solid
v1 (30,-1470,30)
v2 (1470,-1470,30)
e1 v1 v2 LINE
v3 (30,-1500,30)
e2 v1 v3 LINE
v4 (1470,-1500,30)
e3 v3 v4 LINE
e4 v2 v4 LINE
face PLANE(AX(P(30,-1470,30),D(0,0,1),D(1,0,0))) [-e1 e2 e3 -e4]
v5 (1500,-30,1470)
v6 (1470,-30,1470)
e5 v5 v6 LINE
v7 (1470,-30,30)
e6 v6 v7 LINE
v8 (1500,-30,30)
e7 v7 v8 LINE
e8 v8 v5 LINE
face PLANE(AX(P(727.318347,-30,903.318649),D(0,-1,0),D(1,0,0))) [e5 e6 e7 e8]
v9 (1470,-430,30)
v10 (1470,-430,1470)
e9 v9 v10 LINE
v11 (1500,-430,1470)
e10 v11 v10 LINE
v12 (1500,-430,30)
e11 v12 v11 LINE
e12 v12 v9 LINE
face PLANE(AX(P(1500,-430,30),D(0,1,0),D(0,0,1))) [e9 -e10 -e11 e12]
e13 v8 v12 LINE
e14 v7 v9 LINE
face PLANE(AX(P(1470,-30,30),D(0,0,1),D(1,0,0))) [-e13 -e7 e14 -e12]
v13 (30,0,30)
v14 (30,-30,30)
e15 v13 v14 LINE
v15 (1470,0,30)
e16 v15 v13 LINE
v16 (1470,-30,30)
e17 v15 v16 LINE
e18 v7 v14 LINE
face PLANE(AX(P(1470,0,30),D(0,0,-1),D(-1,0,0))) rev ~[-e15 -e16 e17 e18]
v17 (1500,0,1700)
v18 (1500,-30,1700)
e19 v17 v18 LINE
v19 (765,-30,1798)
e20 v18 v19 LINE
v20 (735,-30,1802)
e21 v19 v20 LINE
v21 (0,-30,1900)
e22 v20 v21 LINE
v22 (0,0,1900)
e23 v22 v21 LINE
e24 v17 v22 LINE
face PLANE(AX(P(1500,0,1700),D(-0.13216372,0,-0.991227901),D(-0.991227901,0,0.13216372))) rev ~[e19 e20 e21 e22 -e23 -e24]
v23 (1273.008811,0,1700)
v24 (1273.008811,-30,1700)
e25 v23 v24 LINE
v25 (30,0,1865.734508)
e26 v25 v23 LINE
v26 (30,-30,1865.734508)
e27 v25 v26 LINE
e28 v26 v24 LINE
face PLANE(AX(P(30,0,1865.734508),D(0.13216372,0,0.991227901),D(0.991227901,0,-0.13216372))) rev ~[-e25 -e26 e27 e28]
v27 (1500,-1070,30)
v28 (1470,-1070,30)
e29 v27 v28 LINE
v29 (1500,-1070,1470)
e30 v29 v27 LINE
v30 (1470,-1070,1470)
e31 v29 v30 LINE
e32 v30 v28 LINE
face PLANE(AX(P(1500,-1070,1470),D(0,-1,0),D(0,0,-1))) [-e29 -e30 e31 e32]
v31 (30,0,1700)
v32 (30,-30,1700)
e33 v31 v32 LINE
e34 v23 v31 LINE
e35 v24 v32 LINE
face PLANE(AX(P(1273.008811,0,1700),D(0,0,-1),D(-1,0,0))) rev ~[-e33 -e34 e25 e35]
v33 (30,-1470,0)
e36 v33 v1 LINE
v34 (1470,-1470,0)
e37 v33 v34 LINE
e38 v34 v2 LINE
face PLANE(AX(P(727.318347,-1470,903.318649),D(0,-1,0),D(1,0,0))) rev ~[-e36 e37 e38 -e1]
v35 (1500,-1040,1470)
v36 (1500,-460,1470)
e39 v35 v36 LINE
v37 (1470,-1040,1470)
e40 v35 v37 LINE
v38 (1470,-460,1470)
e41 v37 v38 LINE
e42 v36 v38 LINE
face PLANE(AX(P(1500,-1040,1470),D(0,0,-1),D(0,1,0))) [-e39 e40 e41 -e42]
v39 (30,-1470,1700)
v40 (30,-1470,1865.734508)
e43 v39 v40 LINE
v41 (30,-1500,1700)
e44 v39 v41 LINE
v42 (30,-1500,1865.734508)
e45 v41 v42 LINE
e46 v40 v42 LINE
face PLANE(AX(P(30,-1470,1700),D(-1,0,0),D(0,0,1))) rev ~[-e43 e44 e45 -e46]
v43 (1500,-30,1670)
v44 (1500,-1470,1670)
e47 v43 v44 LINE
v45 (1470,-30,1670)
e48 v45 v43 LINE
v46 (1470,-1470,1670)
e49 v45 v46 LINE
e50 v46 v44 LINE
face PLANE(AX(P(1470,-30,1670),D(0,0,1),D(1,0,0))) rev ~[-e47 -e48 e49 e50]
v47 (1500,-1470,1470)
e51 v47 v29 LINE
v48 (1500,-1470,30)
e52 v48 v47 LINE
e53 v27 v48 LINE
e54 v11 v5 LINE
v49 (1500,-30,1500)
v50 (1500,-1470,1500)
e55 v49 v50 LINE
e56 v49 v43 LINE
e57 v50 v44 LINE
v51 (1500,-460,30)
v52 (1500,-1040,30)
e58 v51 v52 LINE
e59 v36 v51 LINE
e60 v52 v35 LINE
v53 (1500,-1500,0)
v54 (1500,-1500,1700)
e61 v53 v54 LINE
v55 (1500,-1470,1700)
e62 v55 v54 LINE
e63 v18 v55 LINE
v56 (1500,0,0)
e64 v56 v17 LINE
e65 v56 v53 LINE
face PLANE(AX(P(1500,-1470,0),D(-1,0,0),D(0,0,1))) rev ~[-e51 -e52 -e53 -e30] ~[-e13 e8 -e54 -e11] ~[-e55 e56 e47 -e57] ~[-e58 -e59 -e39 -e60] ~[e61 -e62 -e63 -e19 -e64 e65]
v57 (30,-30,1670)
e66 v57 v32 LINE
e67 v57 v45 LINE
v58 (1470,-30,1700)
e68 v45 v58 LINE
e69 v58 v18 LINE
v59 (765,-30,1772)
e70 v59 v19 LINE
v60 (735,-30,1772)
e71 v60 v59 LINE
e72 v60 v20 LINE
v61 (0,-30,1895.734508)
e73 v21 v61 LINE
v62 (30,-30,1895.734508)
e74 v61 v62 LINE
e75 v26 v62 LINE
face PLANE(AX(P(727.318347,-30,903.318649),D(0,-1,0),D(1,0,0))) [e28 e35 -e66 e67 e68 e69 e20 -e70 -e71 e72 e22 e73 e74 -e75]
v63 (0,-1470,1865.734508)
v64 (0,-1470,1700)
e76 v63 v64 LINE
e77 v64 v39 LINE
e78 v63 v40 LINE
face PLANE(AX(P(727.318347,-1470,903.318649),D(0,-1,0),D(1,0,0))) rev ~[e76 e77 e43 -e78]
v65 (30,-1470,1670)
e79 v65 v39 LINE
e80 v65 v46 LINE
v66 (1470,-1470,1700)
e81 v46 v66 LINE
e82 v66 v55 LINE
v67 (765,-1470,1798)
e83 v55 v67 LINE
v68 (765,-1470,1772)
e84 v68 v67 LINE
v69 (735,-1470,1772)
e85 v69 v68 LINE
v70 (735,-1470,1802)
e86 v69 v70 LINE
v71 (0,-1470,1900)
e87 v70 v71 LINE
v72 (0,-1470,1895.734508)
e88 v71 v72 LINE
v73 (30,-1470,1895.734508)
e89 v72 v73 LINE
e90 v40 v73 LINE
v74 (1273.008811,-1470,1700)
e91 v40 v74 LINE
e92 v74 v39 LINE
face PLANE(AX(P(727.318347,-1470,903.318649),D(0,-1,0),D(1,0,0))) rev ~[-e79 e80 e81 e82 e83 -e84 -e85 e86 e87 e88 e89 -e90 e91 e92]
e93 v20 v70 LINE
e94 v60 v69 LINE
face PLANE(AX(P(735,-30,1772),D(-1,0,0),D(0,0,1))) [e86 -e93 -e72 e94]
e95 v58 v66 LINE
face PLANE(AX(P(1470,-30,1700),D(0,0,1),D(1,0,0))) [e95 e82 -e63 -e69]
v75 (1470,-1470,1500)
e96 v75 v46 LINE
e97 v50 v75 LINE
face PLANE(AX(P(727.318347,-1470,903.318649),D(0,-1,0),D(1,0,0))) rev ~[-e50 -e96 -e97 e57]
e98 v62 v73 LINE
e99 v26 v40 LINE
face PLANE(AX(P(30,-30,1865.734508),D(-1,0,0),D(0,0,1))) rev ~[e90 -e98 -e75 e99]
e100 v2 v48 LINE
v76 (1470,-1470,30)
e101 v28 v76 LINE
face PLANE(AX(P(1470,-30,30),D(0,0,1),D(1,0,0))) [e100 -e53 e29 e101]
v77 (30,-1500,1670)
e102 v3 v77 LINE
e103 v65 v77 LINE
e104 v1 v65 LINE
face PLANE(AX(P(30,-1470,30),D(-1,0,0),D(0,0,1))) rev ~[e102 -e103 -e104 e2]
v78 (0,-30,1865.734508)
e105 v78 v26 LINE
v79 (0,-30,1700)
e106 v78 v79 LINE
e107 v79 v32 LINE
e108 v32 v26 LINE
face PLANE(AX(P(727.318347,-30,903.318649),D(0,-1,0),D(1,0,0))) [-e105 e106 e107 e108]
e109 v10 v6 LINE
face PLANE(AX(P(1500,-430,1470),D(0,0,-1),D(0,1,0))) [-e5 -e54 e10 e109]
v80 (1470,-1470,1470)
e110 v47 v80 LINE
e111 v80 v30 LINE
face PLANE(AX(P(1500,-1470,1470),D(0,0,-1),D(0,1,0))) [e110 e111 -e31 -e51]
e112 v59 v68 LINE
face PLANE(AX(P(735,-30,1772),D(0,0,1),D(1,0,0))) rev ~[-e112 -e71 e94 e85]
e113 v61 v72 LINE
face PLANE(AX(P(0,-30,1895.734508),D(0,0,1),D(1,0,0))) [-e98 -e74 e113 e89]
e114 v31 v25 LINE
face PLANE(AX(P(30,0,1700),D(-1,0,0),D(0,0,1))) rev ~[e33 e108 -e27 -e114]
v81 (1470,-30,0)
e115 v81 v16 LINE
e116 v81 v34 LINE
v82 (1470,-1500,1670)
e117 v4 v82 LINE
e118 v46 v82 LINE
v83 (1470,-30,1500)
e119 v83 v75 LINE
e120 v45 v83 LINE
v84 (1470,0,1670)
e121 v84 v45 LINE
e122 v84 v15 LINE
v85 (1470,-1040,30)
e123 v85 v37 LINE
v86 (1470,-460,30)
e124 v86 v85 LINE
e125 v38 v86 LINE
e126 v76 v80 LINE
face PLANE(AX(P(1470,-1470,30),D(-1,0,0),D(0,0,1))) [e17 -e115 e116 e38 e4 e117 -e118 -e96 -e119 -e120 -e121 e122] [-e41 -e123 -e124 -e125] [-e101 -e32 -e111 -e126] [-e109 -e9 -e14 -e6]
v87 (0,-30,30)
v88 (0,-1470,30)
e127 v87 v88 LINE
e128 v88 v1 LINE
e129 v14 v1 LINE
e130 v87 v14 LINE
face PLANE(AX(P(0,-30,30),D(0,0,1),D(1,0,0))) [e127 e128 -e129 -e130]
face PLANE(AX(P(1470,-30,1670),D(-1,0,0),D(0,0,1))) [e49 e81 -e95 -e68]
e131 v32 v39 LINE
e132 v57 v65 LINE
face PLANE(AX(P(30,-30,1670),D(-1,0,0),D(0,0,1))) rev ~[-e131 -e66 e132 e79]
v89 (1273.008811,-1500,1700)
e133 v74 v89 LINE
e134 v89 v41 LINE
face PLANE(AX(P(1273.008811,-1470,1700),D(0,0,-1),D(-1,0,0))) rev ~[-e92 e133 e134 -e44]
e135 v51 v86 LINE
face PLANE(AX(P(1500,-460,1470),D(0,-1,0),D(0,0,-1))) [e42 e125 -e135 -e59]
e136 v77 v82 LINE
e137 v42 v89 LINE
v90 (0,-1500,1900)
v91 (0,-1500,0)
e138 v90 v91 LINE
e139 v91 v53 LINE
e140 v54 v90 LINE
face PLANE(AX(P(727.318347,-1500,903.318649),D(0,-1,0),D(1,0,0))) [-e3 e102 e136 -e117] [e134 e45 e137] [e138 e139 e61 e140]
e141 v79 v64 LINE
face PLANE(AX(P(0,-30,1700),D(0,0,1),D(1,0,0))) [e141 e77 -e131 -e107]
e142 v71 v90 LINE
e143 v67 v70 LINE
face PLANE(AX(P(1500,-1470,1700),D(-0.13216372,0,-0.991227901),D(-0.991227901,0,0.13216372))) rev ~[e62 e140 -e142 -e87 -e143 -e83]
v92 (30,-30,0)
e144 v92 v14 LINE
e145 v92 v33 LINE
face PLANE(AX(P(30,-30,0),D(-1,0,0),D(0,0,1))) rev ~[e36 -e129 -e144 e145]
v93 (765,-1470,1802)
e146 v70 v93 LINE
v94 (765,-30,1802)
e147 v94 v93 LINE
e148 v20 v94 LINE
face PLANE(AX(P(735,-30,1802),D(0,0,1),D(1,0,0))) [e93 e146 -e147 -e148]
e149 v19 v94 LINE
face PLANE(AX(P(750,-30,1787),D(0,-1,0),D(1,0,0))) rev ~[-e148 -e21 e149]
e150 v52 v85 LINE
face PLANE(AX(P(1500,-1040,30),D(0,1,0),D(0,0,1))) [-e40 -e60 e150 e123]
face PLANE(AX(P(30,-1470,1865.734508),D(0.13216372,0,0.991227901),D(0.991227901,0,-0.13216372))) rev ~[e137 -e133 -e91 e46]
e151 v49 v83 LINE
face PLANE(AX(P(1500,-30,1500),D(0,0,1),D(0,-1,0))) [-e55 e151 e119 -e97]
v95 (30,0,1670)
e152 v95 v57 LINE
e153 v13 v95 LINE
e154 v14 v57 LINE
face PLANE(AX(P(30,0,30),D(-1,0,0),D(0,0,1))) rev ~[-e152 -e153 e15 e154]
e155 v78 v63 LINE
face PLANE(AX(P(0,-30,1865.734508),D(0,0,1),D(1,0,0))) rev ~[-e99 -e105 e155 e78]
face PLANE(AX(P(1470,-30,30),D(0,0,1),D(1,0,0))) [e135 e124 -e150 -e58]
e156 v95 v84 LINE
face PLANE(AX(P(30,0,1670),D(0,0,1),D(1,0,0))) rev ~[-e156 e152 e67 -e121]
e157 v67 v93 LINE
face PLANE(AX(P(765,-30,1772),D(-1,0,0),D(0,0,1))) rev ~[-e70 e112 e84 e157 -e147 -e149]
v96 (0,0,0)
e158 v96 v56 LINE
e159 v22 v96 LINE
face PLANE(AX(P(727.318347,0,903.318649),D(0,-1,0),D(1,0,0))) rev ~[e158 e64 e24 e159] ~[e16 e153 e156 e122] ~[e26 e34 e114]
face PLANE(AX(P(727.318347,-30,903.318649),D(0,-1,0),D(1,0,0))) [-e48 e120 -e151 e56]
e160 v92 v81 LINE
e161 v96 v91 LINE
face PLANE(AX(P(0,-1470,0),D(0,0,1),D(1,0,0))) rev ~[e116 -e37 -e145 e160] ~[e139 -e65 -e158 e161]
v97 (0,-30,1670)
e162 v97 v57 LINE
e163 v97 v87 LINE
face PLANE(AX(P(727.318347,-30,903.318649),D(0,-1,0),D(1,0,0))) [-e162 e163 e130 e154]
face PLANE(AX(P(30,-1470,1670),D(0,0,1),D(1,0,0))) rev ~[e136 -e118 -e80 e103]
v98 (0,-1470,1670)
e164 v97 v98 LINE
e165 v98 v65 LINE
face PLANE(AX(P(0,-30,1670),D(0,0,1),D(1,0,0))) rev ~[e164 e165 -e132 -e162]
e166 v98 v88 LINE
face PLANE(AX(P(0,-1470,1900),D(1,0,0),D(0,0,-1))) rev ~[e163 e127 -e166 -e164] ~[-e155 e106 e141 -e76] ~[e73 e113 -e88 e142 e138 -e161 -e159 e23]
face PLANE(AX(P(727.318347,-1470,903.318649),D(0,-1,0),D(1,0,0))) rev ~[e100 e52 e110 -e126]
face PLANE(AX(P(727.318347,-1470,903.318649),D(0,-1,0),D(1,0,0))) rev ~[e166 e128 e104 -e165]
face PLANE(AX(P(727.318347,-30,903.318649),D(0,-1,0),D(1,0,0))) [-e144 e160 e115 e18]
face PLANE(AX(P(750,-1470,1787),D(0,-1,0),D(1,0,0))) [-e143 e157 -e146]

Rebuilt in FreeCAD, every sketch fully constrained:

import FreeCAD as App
import Part
import Sketcher
Q = App.Units.Quantity


def add_polygon(sketch, points):
    """Adds a closed chain of lines whose ends are joined by coincident constraints."""
    first, n = sketch.GeometryCount, len(points)
    for a, b in zip(points, points[1:] + points[:1]):
        sketch.addGeometry(Part.LineSegment(App.Vector(*a, 0), App.Vector(*b, 0)), False)
    for i in range(n):
        sketch.addConstraint(Sketcher.Constraint("Coincident", first + i, 2, first + (i + 1) % n, 1))

doc = App.newDocument("Part")
params = doc.addObject("Spreadsheet::Sheet", "Params")
for row, (alias, value) in enumerate([
    ("sketch1_width", "1500 mm"),
    ("sketch1_width2", "1440 mm"),
    ("sketch1_height", "1700 mm"),
    ("sketch1_height2", "1900 mm"),
    ("sketch1_height3", "1640 mm"),
    ("pad1_length", "30 mm"),
    ("sketch2_width", "30 mm"),
    ("pad2_length", "1440 mm"),
    ("sketch3_width", "1500 mm"),
    ("sketch3_width2", "1440 mm"),
    ("sketch3_height", "1900 mm"),
    ("sketch3_height2", "1700 mm"),
    ("sketch3_height3", "1640 mm"),
    ("pad3_length", "30 mm"),
    ("sketch4_width", "30 mm"),
    ("sketch4_width2", "580 mm"),
    ("sketch4_width3", "400 mm"),
    ("pad4_length", "30 mm"),
], start=1):
    params.set(f"A{row}", alias)
    params.set(f"B{row}", "=" + value)
    params.setAlias(f"B{row}", alias)

body = doc.addObject("PartDesign::Body", "Body")

sketch1 = body.newObject("Sketcher::SketchObject", "Sketch")
sketch1.AttachmentSupport = (doc.getObject("XZ_Plane"), [""])
sketch1.MapMode = "FlatFace"
add_polygon(sketch1, [(0, 0), (1500, 0), (1500, 1700), (0, 1900)])
add_polygon(sketch1, [(30, 30), (30, 1670), (1470, 1670), (1470, 30)])
add_polygon(sketch1, [(30, 1700), (30, 1866), (1273, 1700)])
sketch1.addConstraint([
    Sketcher.Constraint("Horizontal", 0),
    Sketcher.Constraint("Vertical", 1),
    Sketcher.Constraint("Vertical", 3),
    Sketcher.Constraint("Vertical", 4),
    Sketcher.Constraint("Horizontal", 5),
    Sketcher.Constraint("Vertical", 6),
    Sketcher.Constraint("Horizontal", 7),
    Sketcher.Constraint("Vertical", 8),
    Sketcher.Constraint("Horizontal", 10),
    Sketcher.Constraint("Coincident", 3, 2, -1, 1),
    Sketcher.Constraint("Parallel", 2, 9),
    Sketcher.Constraint("Horizontal", 1, 2, 9, 2),
    Sketcher.Constraint("Vertical", 7, 2, 8, 2),
    Sketcher.Constraint("DistanceX", 0, 1, 0, 2, Q("1500 mm")),
    Sketcher.Constraint("DistanceX", 5, 1, 5, 2, Q("1440 mm")),
    Sketcher.Constraint("DistanceY", 1, 1, 1, 2, Q("1700 mm")),
    Sketcher.Constraint("DistanceY", 3, 2, 3, 1, Q("1900 mm")),
    Sketcher.Constraint("DistanceY", 4, 1, 4, 2, Q("1640 mm")),
    Sketcher.Constraint("DistanceX", -1, 1, 4, 2, Q("30 mm")),
    Sketcher.Constraint("DistanceY", -1, 1, 4, 2, Q("1670 mm")),
    Sketcher.Constraint("DistanceX", 10, 2, 10, 1, Q("1243.008811 mm")),
])
sketch1.setExpression("Constraints[24]", "Params.sketch1_width")
sketch1.setExpression("Constraints[25]", "Params.sketch1_width2")
sketch1.setExpression("Constraints[26]", "Params.sketch1_height")
sketch1.setExpression("Constraints[27]", "Params.sketch1_height2")
sketch1.setExpression("Constraints[28]", "Params.sketch1_height3")
pad1 = body.newObject("PartDesign::Pad", "Pad")
pad1.Profile = sketch1
pad1.setExpression("Length", "Params.pad1_length")

sketch2 = body.newObject("Sketcher::SketchObject", "Sketch001")
sketch2.AttachmentSupport = (doc.getObject("XZ_Plane"), [""])
sketch2.MapMode = "FlatFace"
sketch2.AttachmentOffset = App.Placement(App.Vector(0, 0, 30), App.Rotation())
add_polygon(sketch2, [(0, 30), (0, 0), (30, 0), (30, 30)])
add_polygon(sketch2, [(1470, 30), (1470, 0), (1500, 0), (1500, 30)])
add_polygon(sketch2, [(0, 1700), (0, 1670), (30, 1670), (30, 1700)])
add_polygon(sketch2, [(1470, 1700), (1470, 1670), (1500, 1670), (1500, 1700)])
add_polygon(sketch2, [(0, 1896), (0, 1866), (30, 1866), (30, 1896)])
add_polygon(sketch2, [(735, 1802), (735, 1772), (765, 1772), (765, 1802)])
sketch2.addConstraint([
    Sketcher.Constraint("Vertical", 0),
    Sketcher.Constraint("Horizontal", 1),
    Sketcher.Constraint("Vertical", 2),
    Sketcher.Constraint("Horizontal", 3),
    Sketcher.Constraint("Vertical", 4),
    Sketcher.Constraint("Horizontal", 5),
    Sketcher.Constraint("Vertical", 6),
    Sketcher.Constraint("Horizontal", 7),
    Sketcher.Constraint("Vertical", 8),
    Sketcher.Constraint("Horizontal", 9),
    Sketcher.Constraint("Vertical", 10),
    Sketcher.Constraint("Horizontal", 11),
    Sketcher.Constraint("Vertical", 12),
    Sketcher.Constraint("Horizontal", 13),
    Sketcher.Constraint("Vertical", 14),
    Sketcher.Constraint("Horizontal", 15),
    Sketcher.Constraint("Vertical", 16),
    Sketcher.Constraint("Horizontal", 17),
    Sketcher.Constraint("Vertical", 18),
    Sketcher.Constraint("Horizontal", 19),
    Sketcher.Constraint("Vertical", 20),
    Sketcher.Constraint("Horizontal", 21),
    Sketcher.Constraint("Vertical", 22),
    Sketcher.Constraint("Horizontal", 23),
    Sketcher.Constraint("Coincident", 0, 2, -1, 1),
    Sketcher.Constraint("PointOnObject", 4, 2, -1),
    Sketcher.Constraint("PointOnObject", 8, 2, -2),
    Sketcher.Constraint("PointOnObject", 16, 2, -2),
    Sketcher.Constraint("Horizontal", 3, 2, 6, 2),
    Sketcher.Constraint("Horizontal", 9, 2, 12, 2),
    Sketcher.Constraint("Horizontal", 11, 2, 14, 2),
    Sketcher.Constraint("Vertical", 2, 2, 9, 2),
    Sketcher.Constraint("Vertical", 7, 2, 12, 2),
    Sketcher.Constraint("Vertical", 6, 2, 13, 2),
    Sketcher.Constraint("Vertical", 10, 2, 17, 2),
    Sketcher.Constraint("Equal", 3, 5),
    Sketcher.Constraint("Equal", 19, 21),
    Sketcher.Constraint("Equal", 23, 0),
    Sketcher.Constraint("Equal", 6, 8),
    Sketcher.Constraint("Equal", 14, 16),
    Sketcher.Constraint("Equal", 18, 20),
    Sketcher.Constraint("DistanceX", 1, 1, 1, 2, Q("30 mm")),
    Sketcher.Constraint("DistanceX", -1, 1, 4, 2, Q("1470 mm")),
    Sketcher.Constraint("DistanceY", -1, 1, 8, 2, Q("1670 mm")),
    Sketcher.Constraint("DistanceX", -1, 1, 20, 2, Q("735 mm")),
    Sketcher.Constraint("DistanceY", -1, 1, 20, 2, Q("1772 mm")),
    Sketcher.Constraint("DistanceY", -1, 1, 16, 2, Q("1865.734508 mm")),
])
sketch2.setExpression("Constraints[65]", "Params.sketch2_width")
pad2 = body.newObject("PartDesign::Pad", "Pad001")
pad2.Profile = sketch2
pad2.setExpression("Length", "Params.pad2_length")

sketch3 = body.newObject("Sketcher::SketchObject", "Sketch002")
sketch3.AttachmentSupport = (doc.getObject("XZ_Plane"), [""])
sketch3.MapMode = "FlatFace"
sketch3.AttachmentOffset = App.Placement(App.Vector(0, 0, 1470), App.Rotation())
add_polygon(sketch3, [(0, 1900), (0, 0), (1500, 0), (1500, 1700)])
add_polygon(sketch3, [(1470, 30), (30, 30), (30, 1670), (1470, 1670)])
add_polygon(sketch3, [(1273, 1700), (30, 1700), (30, 1866)])
sketch3.addConstraint([
    Sketcher.Constraint("Vertical", 0),
    Sketcher.Constraint("Horizontal", 1),
    Sketcher.Constraint("Vertical", 2),
    Sketcher.Constraint("Horizontal", 4),
    Sketcher.Constraint("Vertical", 5),
    Sketcher.Constraint("Horizontal", 6),
    Sketcher.Constraint("Vertical", 7),
    Sketcher.Constraint("Horizontal", 8),
    Sketcher.Constraint("Vertical", 9),
    Sketcher.Constraint("Coincident", 0, 2, -1, 1),
    Sketcher.Constraint("Parallel", 3, 10),
    Sketcher.Constraint("Horizontal", 2, 2, 8, 2),
    Sketcher.Constraint("Vertical", 5, 2, 8, 2),
    Sketcher.Constraint("DistanceX", 1, 1, 1, 2, Q("1500 mm")),
    Sketcher.Constraint("DistanceX", 4, 2, 4, 1, Q("1440 mm")),
    Sketcher.Constraint("DistanceY", 0, 2, 0, 1, Q("1900 mm")),
    Sketcher.Constraint("DistanceY", 2, 1, 2, 2, Q("1700 mm")),
    Sketcher.Constraint("DistanceY", 5, 1, 5, 2, Q("1640 mm")),
    Sketcher.Constraint("DistanceX", -1, 1, 4, 2, Q("30 mm")),
    Sketcher.Constraint("DistanceY", -1, 1, 4, 2, Q("30 mm")),
    Sketcher.Constraint("DistanceX", 8, 2, 8, 1, Q("1243.008811 mm")),
])
sketch3.setExpression("Constraints[24]", "Params.sketch3_width")
sketch3.setExpression("Constraints[25]", "Params.sketch3_width2")
sketch3.setExpression("Constraints[26]", "Params.sketch3_height")
sketch3.setExpression("Constraints[27]", "Params.sketch3_height2")
sketch3.setExpression("Constraints[28]", "Params.sketch3_height3")
pad3 = body.newObject("PartDesign::Pad", "Pad002")
pad3.Profile = sketch3
pad3.setExpression("Length", "Params.pad3_length")

sketch4 = body.newObject("Sketcher::SketchObject", "Sketch003")
sketch4.AttachmentSupport = (doc.getObject("YZ_Plane"), [""])
sketch4.MapMode = "FlatFace"
sketch4.AttachmentOffset = App.Placement(App.Vector(0, 0, 1500), App.Rotation())
add_polygon(sketch4, [(-1070, 1470), (-1070, 30), (-1040, 30), (-1040, 1470), (-460, 1470), (-460, 30), (-430, 30), (-430, 1470), (-30, 1470), (-30, 1500), (-1470, 1500), (-1470, 1470)])
sketch4.addConstraint([
    Sketcher.Constraint("Vertical", 0),
    Sketcher.Constraint("Horizontal", 1),
    Sketcher.Constraint("Vertical", 2),
    Sketcher.Constraint("Horizontal", 3),
    Sketcher.Constraint("Vertical", 4),
    Sketcher.Constraint("Horizontal", 5),
    Sketcher.Constraint("Vertical", 6),
    Sketcher.Constraint("Horizontal", 7),
    Sketcher.Constraint("Vertical", 8),
    Sketcher.Constraint("Horizontal", 9),
    Sketcher.Constraint("Vertical", 10),
    Sketcher.Constraint("Horizontal", 11),
    Sketcher.Constraint("Horizontal", 1, 2, 4, 2),
    Sketcher.Constraint("Horizontal", 3, 2, 6, 2),
    Sketcher.Constraint("Horizontal", 7, 2, 10, 2),
    Sketcher.Constraint("Equal", 1, 5),
    Sketcher.Constraint("Equal", 7, 11),
    Sketcher.Constraint("Equal", 9, 0),
    Sketcher.Constraint("Equal", 5, 8),
    Sketcher.Constraint("DistanceX", 1, 1, 1, 2, Q("30 mm")),
    Sketcher.Constraint("DistanceX", 3, 1, 3, 2, Q("580 mm")),
    Sketcher.Constraint("DistanceX", 7, 1, 7, 2, Q("400 mm")),
    Sketcher.Constraint("DistanceX", 0, 2, -1, 1, Q("1070 mm")),
    Sketcher.Constraint("DistanceY", -1, 1, 0, 2, Q("30 mm")),
])
sketch4.setExpression("Constraints[31]", "Params.sketch4_width")
sketch4.setExpression("Constraints[32]", "Params.sketch4_width2")
sketch4.setExpression("Constraints[33]", "Params.sketch4_width3")
pad4 = body.newObject("PartDesign::Pad", "Pad003")
pad4.Profile = sketch4
pad4.setExpression("Length", "Params.pad4_length")
pad4.Reversed = True

doc.recompute()
